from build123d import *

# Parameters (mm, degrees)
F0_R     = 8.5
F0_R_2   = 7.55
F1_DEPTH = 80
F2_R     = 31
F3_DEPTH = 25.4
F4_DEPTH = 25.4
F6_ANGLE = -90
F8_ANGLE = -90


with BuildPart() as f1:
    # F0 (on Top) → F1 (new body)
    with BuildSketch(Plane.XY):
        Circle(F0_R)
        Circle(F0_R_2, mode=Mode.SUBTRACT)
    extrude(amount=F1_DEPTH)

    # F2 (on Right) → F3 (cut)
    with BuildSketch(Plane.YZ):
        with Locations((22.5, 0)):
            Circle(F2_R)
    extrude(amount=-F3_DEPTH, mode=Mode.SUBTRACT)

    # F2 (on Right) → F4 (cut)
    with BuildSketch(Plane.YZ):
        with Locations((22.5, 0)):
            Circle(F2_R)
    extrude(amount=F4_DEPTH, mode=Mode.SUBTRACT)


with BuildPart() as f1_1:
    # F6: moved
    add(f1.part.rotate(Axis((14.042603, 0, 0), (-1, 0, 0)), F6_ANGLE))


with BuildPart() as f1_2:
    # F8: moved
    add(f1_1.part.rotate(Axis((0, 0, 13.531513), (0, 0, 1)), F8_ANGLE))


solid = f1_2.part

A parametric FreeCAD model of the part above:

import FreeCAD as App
import Part
import Sketcher

V = App.Vector

doc = App.newDocument("Part")
body = doc.addObject("PartDesign::Body", "Body")

# Sketch on XY plane
sketch1 = body.newObject("Sketcher::SketchObject", "Sketch")
sketch1.AttachmentSupport = (doc.getObject("XY_Plane"), [""])
sketch1.MapMode = "FlatFace"
sketch1.addGeometry(Part.Circle(V(0, 0, 0), V(0, 0, 1), 8.5), False)
sketch1.addGeometry(Part.Circle(V(0, 0, 0), V(0, 0, 1), 7.55), False)
sketch1.addConstraint(Sketcher.Constraint("Coincident", 0, 3, -1, 1))
sketch1.addConstraint(Sketcher.Constraint("Coincident", 1, 3, -1, 1))
sketch1.addConstraint(Sketcher.Constraint("Diameter", 0, 17.0))
sketch1.addConstraint(Sketcher.Constraint("Diameter", 1, 15.1))
pad1 = body.newObject("PartDesign::Pad", "Pad")
pad1.Profile = sketch1
pad1.Length = 80

# Sketch on YZ plane
sketch2 = body.newObject("Sketcher::SketchObject", "Sketch001")
sketch2.AttachmentSupport = (doc.getObject("YZ_Plane"), [""])
sketch2.MapMode = "FlatFace"
sketch2.addGeometry(Part.Circle(V(22.5, 0, 0), V(0, 0, 1), 31), False)
sketch2.addConstraint(Sketcher.Constraint("PointOnObject", 0, 3, -1))
sketch2.addConstraint(Sketcher.Constraint("Diameter", 0, 62.0))
sketch2.addConstraint(Sketcher.Constraint("DistanceX", -1, 1, 0, 3, 22.5))
pocket1 = body.newObject("PartDesign::Pocket", "Pocket")
pocket1.Profile = sketch2
pocket1.Length = 25.4

# Sketch on YZ plane
sketch3 = body.newObject("Sketcher::SketchObject", "Sketch002")
sketch3.AttachmentSupport = (doc.getObject("YZ_Plane"), [""])
sketch3.MapMode = "FlatFace"
sketch3.addGeometry(Part.Circle(V(22.5, 0, 0), V(0, 0, 1), 31), False)
sketch3.addConstraint(Sketcher.Constraint("PointOnObject", 0, 3, -1))
sketch3.addConstraint(Sketcher.Constraint("Diameter", 0, 62.0))
sketch3.addConstraint(Sketcher.Constraint("DistanceX", -1, 1, 0, 3, 22.5))
pocket2 = body.newObject("PartDesign::Pocket", "Pocket001")
pocket2.Profile = sketch3
pocket2.Length = 25.4
pocket2.Reversed = True
body2 = doc.addObject("PartDesign::Body", "Body001")
doc.recompute()

body.Placement = App.Placement(V(0, 0, 0), App.Rotation(V(-1, 0, 0), 270))
boolean = body2.newObject("PartDesign::Boolean", "Boolean")
boolean.Type = "Fuse"
boolean.addObjects([body])
body3 = doc.addObject("PartDesign::Body", "Body002")
doc.recompute()

body2.Placement = App.Placement(V(0, 0, 0), App.Rotation(V(0, 0, 1), 270))
boolean2 = body3.newObject("PartDesign::Boolean", "Boolean001")
boolean2.Type = "Fuse"
boolean2.addObjects([body2])

doc.recompute()
